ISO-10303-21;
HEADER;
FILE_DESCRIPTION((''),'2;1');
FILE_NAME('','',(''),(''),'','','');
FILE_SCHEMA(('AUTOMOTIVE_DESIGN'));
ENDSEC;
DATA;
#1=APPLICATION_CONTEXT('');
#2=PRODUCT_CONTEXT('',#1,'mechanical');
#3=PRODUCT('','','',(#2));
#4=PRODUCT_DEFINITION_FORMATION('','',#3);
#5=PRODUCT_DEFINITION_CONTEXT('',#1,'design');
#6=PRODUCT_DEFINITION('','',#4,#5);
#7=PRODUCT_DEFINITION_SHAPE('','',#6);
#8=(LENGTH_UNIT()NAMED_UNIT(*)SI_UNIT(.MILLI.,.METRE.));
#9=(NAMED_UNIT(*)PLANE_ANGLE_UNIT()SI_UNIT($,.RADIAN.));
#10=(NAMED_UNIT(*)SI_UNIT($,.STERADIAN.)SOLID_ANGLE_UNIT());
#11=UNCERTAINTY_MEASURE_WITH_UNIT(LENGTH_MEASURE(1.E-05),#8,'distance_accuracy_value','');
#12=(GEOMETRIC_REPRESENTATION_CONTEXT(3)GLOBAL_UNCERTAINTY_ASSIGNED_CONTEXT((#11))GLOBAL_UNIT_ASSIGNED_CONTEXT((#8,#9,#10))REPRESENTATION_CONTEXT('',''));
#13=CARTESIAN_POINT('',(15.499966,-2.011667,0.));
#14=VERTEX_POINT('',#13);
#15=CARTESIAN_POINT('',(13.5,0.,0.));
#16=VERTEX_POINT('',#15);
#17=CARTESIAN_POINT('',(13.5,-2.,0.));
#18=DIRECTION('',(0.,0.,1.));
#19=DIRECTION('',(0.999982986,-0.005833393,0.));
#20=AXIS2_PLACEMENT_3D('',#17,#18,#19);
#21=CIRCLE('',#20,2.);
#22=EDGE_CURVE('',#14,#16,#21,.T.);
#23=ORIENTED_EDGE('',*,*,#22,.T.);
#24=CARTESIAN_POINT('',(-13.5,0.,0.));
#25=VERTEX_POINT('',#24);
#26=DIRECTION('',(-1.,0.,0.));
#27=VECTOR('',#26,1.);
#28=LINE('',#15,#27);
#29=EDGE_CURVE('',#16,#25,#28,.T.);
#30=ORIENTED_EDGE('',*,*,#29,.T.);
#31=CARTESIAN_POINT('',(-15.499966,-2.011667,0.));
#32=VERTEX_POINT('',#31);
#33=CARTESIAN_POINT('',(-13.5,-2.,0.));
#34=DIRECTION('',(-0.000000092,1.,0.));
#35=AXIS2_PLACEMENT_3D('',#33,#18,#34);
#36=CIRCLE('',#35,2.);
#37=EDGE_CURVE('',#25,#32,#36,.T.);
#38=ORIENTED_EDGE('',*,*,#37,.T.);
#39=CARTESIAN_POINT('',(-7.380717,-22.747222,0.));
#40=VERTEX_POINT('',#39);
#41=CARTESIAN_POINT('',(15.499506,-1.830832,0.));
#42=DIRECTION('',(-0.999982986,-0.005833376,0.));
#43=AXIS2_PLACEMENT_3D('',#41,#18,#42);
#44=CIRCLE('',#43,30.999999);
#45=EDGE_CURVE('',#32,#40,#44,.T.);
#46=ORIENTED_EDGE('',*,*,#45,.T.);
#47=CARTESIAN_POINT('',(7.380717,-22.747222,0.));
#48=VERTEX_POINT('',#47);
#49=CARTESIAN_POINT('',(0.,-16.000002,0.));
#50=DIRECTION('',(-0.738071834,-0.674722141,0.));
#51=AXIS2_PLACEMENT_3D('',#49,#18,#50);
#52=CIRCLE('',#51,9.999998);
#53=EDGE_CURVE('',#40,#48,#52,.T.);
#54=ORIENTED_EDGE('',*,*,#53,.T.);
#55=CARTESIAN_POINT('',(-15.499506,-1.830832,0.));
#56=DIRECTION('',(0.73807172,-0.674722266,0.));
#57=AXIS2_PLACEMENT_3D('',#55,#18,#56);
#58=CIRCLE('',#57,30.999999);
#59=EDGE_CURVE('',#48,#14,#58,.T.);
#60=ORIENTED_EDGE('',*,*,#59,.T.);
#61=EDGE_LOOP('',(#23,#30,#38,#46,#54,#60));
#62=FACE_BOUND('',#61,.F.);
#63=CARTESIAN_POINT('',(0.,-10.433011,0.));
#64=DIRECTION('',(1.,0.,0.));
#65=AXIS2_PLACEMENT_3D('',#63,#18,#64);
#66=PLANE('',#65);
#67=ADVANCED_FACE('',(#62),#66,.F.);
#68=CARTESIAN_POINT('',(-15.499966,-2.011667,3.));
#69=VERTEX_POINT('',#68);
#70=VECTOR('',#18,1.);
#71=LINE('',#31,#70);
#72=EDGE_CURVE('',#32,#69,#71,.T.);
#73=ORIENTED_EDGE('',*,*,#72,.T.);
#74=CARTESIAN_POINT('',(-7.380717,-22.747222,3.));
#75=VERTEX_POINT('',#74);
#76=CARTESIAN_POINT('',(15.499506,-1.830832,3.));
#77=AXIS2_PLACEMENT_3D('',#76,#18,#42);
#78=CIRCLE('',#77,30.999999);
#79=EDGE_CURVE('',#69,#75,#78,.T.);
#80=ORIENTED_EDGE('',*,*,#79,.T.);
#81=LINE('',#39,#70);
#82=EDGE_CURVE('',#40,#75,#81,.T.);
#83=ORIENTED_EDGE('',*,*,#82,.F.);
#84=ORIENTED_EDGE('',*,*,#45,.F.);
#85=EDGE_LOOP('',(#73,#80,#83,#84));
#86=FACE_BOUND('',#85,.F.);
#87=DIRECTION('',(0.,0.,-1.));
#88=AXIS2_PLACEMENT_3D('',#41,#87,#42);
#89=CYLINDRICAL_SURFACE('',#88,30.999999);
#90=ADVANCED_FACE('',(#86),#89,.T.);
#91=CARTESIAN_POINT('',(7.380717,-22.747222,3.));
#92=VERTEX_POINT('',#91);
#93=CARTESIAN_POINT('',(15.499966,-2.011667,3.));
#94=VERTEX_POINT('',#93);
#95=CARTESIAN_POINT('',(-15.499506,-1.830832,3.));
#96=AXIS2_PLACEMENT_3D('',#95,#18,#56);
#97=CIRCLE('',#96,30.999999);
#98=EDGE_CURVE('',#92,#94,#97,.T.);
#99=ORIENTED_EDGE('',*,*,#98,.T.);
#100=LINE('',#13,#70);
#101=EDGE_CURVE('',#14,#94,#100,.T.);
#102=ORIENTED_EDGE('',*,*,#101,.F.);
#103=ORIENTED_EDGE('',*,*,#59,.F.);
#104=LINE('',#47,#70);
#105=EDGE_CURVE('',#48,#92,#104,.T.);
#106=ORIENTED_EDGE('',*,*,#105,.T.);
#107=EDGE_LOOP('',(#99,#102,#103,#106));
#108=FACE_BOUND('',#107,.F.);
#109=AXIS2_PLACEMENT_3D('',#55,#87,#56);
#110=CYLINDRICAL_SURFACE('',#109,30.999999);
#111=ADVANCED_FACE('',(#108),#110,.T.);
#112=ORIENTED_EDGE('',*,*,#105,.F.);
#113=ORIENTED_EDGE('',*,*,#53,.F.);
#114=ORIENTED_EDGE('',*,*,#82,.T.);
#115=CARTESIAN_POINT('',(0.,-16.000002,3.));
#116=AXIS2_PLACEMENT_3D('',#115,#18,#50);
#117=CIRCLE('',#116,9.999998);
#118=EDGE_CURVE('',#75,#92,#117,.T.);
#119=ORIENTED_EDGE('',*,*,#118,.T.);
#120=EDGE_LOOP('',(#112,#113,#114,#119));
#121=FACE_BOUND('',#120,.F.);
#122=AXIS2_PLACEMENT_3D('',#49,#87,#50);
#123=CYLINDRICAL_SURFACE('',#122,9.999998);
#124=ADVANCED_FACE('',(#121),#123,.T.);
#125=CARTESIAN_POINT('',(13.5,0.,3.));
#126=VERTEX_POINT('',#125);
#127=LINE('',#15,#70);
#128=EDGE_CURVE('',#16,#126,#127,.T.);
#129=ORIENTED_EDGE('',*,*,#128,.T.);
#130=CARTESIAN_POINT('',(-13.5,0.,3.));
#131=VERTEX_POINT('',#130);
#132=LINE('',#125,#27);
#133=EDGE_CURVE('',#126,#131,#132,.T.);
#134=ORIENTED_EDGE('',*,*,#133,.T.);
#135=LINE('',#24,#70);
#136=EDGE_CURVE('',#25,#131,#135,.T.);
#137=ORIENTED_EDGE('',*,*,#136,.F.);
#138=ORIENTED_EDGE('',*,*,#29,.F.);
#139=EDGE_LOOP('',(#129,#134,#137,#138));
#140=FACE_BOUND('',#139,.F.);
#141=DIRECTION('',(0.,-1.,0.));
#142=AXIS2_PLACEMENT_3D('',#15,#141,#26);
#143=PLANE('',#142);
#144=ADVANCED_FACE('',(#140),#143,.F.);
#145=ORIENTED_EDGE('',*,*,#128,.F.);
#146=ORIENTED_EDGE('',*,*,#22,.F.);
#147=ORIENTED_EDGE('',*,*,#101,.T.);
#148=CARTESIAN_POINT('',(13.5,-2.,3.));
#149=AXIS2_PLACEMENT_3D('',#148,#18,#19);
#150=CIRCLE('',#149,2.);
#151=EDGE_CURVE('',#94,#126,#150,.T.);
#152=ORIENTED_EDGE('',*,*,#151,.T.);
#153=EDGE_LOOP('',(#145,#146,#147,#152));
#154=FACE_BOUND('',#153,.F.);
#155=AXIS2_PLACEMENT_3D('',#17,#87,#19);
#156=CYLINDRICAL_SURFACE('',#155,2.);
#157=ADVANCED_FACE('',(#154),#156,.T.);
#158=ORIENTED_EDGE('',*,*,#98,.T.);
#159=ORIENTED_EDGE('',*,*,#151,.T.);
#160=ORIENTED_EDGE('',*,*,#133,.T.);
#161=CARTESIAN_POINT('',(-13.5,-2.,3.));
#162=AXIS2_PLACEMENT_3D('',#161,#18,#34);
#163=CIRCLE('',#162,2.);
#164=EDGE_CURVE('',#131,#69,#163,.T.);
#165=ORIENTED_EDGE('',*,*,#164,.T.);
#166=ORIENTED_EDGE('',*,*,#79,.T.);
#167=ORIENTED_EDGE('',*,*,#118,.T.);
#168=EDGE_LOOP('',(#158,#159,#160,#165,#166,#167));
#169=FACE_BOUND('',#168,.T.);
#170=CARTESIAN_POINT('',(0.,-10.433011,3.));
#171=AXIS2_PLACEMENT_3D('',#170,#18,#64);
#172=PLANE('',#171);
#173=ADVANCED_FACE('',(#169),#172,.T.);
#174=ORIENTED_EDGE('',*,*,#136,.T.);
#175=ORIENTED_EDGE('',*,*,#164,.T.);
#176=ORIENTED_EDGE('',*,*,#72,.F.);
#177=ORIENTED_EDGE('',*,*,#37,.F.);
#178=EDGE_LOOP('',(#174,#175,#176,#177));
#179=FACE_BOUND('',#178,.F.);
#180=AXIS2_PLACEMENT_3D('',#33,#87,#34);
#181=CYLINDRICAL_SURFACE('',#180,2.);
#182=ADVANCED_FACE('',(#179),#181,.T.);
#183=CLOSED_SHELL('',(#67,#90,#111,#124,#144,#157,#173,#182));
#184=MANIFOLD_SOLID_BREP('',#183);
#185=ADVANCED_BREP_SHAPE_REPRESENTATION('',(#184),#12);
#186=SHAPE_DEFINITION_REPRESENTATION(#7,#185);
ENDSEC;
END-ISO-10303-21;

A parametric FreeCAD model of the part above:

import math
import FreeCAD as App
import Part
import Sketcher

V = App.Vector
Q = App.Units.Quantity

doc = App.newDocument("Part")
body = doc.addObject("PartDesign::Body", "Body")

# Sketch on XY plane
sketch1 = doc.addObject("Sketcher::SketchObject", "Sketch")
body.addObject(sketch1)
sketch1.AttachmentSupport = (doc.XY_Plane, [""])
sketch1.MapMode = "FlatFace"
sketch1.addGeometry(Part.ArcOfCircle(Part.Circle(V(-13.5, -2, 0), V(0, 0, 1), 2), math.radians(90.000005), math.radians(180.334231)), False)
sketch1.addGeometry(Part.ArcOfCircle(Part.Circle(V(15.499506, -1.830832, 0), V(0, 0, 1), 30.999999), math.radians(-179.66577), math.radians(-137.567414)), False)
sketch1.addGeometry(Part.ArcOfCircle(Part.Circle(V(0, -16.000002, 0), V(0, 0, 1), 9.999998), math.radians(-137.567423), math.radians(-42.432577)), False)
sketch1.addGeometry(Part.ArcOfCircle(Part.Circle(V(-15.499506, -1.830832, 0), V(0, 0, 1), 30.999999), math.radians(-42.432586), math.radians(-0.33423)), False)
sketch1.addGeometry(Part.ArcOfCircle(Part.Circle(V(13.5, -2, 0), V(0, 0, 1), 2), math.radians(-0.334231), math.radians(89.999995)), False)
sketch1.addGeometry(Part.LineSegment(V(13.5, 0, 0), V(-13.5, 0, 0)), False)
sketch1.addConstraint(Sketcher.Constraint("Tangent", 0, 2, 1, 1))
sketch1.addConstraint(Sketcher.Constraint("Tangent", 1, 2, 2, 1))
sketch1.addConstraint(Sketcher.Constraint("Tangent", 2, 2, 3, 1))
sketch1.addConstraint(Sketcher.Constraint("Tangent", 3, 2, 4, 1))
sketch1.addConstraint(Sketcher.Constraint("Tangent", 4, 2, 5, 1))
sketch1.addConstraint(Sketcher.Constraint("Tangent", 5, 2, 0, 1))
sketch1.addConstraint(Sketcher.Constraint("Horizontal", 5))
sketch1.addConstraint(Sketcher.Constraint("Equal", 1, 3))
sketch1.addConstraint(Sketcher.Constraint("Equal", 0, 4))
sketch1.addConstraint(Sketcher.Constraint("Symmetric", 4, 2, 5, 2, -1, 1))
sketch1.addConstraint(Sketcher.Constraint("PointOnObject", 2, 3, -2))
sketch1.addConstraint(Sketcher.Constraint("Radius", 0, Q("2 mm")))
sketch1.addConstraint(Sketcher.Constraint("Radius", 1, Q("30.999999 mm")))
sketch1.addConstraint(Sketcher.Constraint("Radius", 2, Q("9.999998 mm")))
sketch1.addConstraint(Sketcher.Constraint("DistanceX", 5, 2, 5, 1, Q("27 mm")))
sketch1.addConstraint(Sketcher.Constraint("DistanceY", 2, 3, -1, 1, Q("16.000002 mm")))
pad1 = doc.addObject("PartDesign::Pad", "Pad")
body.addObject(pad1)
pad1.Profile = sketch1
pad1.Length = 3

doc.recompute()
